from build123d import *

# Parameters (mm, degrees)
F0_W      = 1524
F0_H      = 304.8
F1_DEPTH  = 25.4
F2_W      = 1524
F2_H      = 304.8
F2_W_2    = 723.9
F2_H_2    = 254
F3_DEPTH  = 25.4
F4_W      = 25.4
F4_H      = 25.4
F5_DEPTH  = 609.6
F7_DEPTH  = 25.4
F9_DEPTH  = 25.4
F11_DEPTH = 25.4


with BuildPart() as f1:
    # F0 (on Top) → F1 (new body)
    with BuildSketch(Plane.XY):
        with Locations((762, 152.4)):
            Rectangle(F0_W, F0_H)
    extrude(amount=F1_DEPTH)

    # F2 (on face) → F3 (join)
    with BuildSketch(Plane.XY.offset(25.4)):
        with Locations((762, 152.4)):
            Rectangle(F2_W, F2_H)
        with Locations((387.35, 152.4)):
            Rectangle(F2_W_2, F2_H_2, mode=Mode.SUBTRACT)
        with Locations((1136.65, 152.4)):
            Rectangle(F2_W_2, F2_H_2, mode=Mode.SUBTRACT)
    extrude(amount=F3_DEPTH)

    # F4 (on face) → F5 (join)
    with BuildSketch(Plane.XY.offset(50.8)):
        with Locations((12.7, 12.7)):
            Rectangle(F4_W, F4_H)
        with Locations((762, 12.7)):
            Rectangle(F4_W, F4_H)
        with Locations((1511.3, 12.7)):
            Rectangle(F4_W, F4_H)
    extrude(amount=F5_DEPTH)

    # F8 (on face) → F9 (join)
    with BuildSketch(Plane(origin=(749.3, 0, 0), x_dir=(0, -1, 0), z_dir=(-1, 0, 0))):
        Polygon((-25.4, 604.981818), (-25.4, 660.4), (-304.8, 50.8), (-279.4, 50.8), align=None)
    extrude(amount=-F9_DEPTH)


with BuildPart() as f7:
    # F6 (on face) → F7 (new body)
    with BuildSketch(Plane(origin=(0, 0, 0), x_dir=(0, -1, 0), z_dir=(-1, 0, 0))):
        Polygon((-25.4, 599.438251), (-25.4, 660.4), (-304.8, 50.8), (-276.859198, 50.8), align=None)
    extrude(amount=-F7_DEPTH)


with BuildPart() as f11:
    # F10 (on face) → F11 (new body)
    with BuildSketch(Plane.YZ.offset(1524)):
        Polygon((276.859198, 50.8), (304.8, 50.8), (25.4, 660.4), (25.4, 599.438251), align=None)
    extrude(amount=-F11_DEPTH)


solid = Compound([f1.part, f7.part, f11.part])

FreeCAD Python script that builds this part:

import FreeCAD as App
import Part
import Sketcher

V = App.Vector
Q = App.Units.Quantity


def add_polygon(sketch, points):
    """Adds a closed chain of lines whose ends are joined by coincident constraints."""
    first, n = sketch.GeometryCount, len(points)
    for a, b in zip(points, points[1:] + points[:1]):
        sketch.addGeometry(Part.LineSegment(App.Vector(*a, 0), App.Vector(*b, 0)), False)
    for i in range(n):
        sketch.addConstraint(Sketcher.Constraint("Coincident", first + i, 2, first + (i + 1) % n, 1))

doc = App.newDocument("Part")
body = doc.addObject("PartDesign::Body", "Body")

sketch1 = body.newObject("Sketcher::SketchObject", "Sketch")
sketch1.AttachmentSupport = (doc.getObject("XY_Plane"), [""])
sketch1.MapMode = "FlatFace"
add_polygon(sketch1, [(0, 305), (0, 0), (1524, 0), (1524, 305)])
sketch1.addConstraint([
    Sketcher.Constraint("Vertical", 0),
    Sketcher.Constraint("Horizontal", 1),
    Sketcher.Constraint("Vertical", 2),
    Sketcher.Constraint("Horizontal", 3),
    Sketcher.Constraint("Coincident", 0, 2, -1, 1),
    Sketcher.Constraint("DistanceX", 1, 1, 1, 2, Q("60 in")),
    Sketcher.Constraint("DistanceY", 0, 2, 0, 1, Q("12 in")),
])
pad1 = body.newObject("PartDesign::Pad", "Pad")
pad1.Profile = sketch1
pad1.Length = Q("1 in")

sketch2 = body.newObject("Sketcher::SketchObject", "Sketch001")
sketch2.AttachmentSupport = (doc.getObject("XY_Plane"), [""])
sketch2.MapMode = "FlatFace"
sketch2.AttachmentOffset = App.Placement(V(0, 0, 1 * 25.4), App.Rotation())
add_polygon(sketch2, [(0, 305), (0, 0), (1524, 0), (1524, 305)])
add_polygon(sketch2, [(749, 25), (25, 25), (25, 279), (749, 279)])
add_polygon(sketch2, [(1499, 25), (775, 25), (775, 279), (1499, 279)])
sketch2.addConstraint([
    Sketcher.Constraint("Vertical", 0),
    Sketcher.Constraint("Horizontal", 1),
    Sketcher.Constraint("Vertical", 2),
    Sketcher.Constraint("Horizontal", 3),
    Sketcher.Constraint("Horizontal", 4),
    Sketcher.Constraint("Vertical", 5),
    Sketcher.Constraint("Horizontal", 6),
    Sketcher.Constraint("Vertical", 7),
    Sketcher.Constraint("Horizontal", 8),
    Sketcher.Constraint("Vertical", 9),
    Sketcher.Constraint("Horizontal", 10),
    Sketcher.Constraint("Vertical", 11),
    Sketcher.Constraint("Coincident", 0, 2, -1, 1),
    Sketcher.Constraint("Horizontal", 7, 2, 8, 2),
    Sketcher.Constraint("Horizontal", 6, 2, 9, 2),
    Sketcher.Constraint("Equal", 6, 8),
    Sketcher.Constraint("DistanceX", 1, 1, 1, 2, Q("60 in")),
    Sketcher.Constraint("DistanceY", 0, 2, 0, 1, Q("12 in")),
    Sketcher.Constraint("DistanceY", 5, 1, 5, 2, Q("10 in")),
    Sketcher.Constraint("DistanceX", 4, 2, 4, 1, Q("28.5 in")),
    Sketcher.Constraint("DistanceX", -1, 1, 4, 2, Q("1 in")),
    Sketcher.Constraint("DistanceY", -1, 1, 4, 2, Q("1 in")),
    Sketcher.Constraint("DistanceX", -1, 1, 10, 2, Q("59 in")),
])
pad2 = body.newObject("PartDesign::Pad", "Pad001")
pad2.Profile = sketch2
pad2.Length = Q("1 in")

sketch3 = body.newObject("Sketcher::SketchObject", "Sketch002")
sketch3.AttachmentSupport = (doc.getObject("XY_Plane"), [""])
sketch3.MapMode = "FlatFace"
sketch3.AttachmentOffset = App.Placement(V(0, 0, 2 * 25.4), App.Rotation())
add_polygon(sketch3, [(0, 25), (0, 0), (25, 0), (25, 25)])
add_polygon(sketch3, [(749, 25), (749, 0), (775, 0), (775, 25)])
add_polygon(sketch3, [(1499, 25), (1499, 0), (1524, 0), (1524, 25)])
sketch3.addConstraint([
    Sketcher.Constraint("Vertical", 0),
    Sketcher.Constraint("Horizontal", 1),
    Sketcher.Constraint("Vertical", 2),
    Sketcher.Constraint("Horizontal", 3),
    Sketcher.Constraint("Vertical", 4),
    Sketcher.Constraint("Horizontal", 5),
    Sketcher.Constraint("Vertical", 6),
    Sketcher.Constraint("Horizontal", 7),
    Sketcher.Constraint("Vertical", 8),
    Sketcher.Constraint("Horizontal", 9),
    Sketcher.Constraint("Vertical", 10),
    Sketcher.Constraint("Horizontal", 11),
    Sketcher.Constraint("Coincident", 0, 2, -1, 1),
    Sketcher.Constraint("PointOnObject", 4, 2, -1),
    Sketcher.Constraint("PointOnObject", 8, 2, -1),
    Sketcher.Constraint("Horizontal", 3, 2, 6, 2),
    Sketcher.Constraint("Horizontal", 7, 2, 10, 2),
    Sketcher.Constraint("Equal", 3, 5),
    Sketcher.Constraint("Equal", 7, 9),
    Sketcher.Constraint("Equal", 11, 0),
    Sketcher.Constraint("DistanceX", 1, 1, 1, 2, Q("1 in")),
    Sketcher.Constraint("DistanceX", -1, 1, 8, 2, Q("59 in")),
    Sketcher.Constraint("DistanceX", -1, 1, 4, 2, Q("29.5 in")),
])
pad3 = body.newObject("PartDesign::Pad", "Pad002")
pad3.Profile = sketch3
pad3.Length = Q("24 in")

sketch4 = body.newObject("Sketcher::SketchObject", "Sketch003")
sketch4.AttachmentSupport = (doc.getObject("YZ_Plane"), [""])
sketch4.MapMode = "FlatFace"
sketch4.AttachmentOffset = App.Placement(V(0, 0, 29.5 * 25.4), App.Rotation())
add_polygon(sketch4, [(25, 605), (25, 660), (305, 51), (279, 51)])
sketch4.addConstraint([
    Sketcher.Constraint("Vertical", 0),
    Sketcher.Constraint("Horizontal", 2),
    Sketcher.Constraint("Parallel", 1, 3),
    Sketcher.Constraint("DistanceX", 2, 2, 2, 1, Q("1 in")),
    Sketcher.Constraint("DistanceX", -1, 1, 0, 2, Q("1 in")),
    Sketcher.Constraint("DistanceY", -1, 1, 0, 2, Q("26 in")),
    Sketcher.Constraint("DistanceX", -1, 1, 1, 2, Q("12 in")),
    Sketcher.Constraint("DistanceY", -1, 1, 1, 2, Q("2 in")),
])
pad4 = body.newObject("PartDesign::Pad", "Pad003")
pad4.Profile = sketch4
pad4.Length = Q("1 in")
body2 = doc.addObject("PartDesign::Body", "Body001")

sketch5 = body2.newObject("Sketcher::SketchObject", "Sketch004")
sketch5.AttachmentSupport = (doc.getObject("YZ_Plane001"), [""])
sketch5.MapMode = "FlatFace"
add_polygon(sketch5, [(25, 599), (25, 660), (305, 51), (277, 51)])
sketch5.addConstraint([
    Sketcher.Constraint("Vertical", 0),
    Sketcher.Constraint("Horizontal", 2),
    Sketcher.Constraint("Parallel", 1, 3),
    Sketcher.Constraint("DistanceX", -1, 1, 0, 2, Q("1 in")),
    Sketcher.Constraint("DistanceY", -1, 1, 0, 2, Q("26 in")),
    Sketcher.Constraint("DistanceX", -1, 1, 1, 2, Q("12 in")),
    Sketcher.Constraint("DistanceY", -1, 1, 1, 2, Q("2 in")),
    Sketcher.Constraint("DistanceY", 0, 1, 0, 2, 60.961749),
])
pad5 = body2.newObject("PartDesign::Pad", "Pad004")
pad5.Profile = sketch5
pad5.Length = Q("1 in")
body3 = doc.addObject("PartDesign::Body", "Body002")

sketch6 = body3.newObject("Sketcher::SketchObject", "Sketch005")
sketch6.AttachmentSupport = (doc.getObject("YZ_Plane002"), [""])
sketch6.MapMode = "FlatFace"
sketch6.AttachmentOffset = App.Placement(V(0, 0, 60 * 25.4), App.Rotation())
add_polygon(sketch6, [(277, 51), (305, 51), (25, 660), (25, 599)])
sketch6.addConstraint([
    Sketcher.Constraint("Horizontal", 0),
    Sketcher.Constraint("Vertical", 2),
    Sketcher.Constraint("Parallel", 1, 3),
    Sketcher.Constraint("DistanceX", -1, 1, 0, 2, Q("12 in")),
    Sketcher.Constraint("DistanceY", -1, 1, 0, 2, Q("2 in")),
    Sketcher.Constraint("DistanceX", -1, 1, 1, 2, Q("1 in")),
    Sketcher.Constraint("DistanceY", -1, 1, 1, 2, Q("26 in")),
    Sketcher.Constraint("DistanceY", 2, 2, 2, 1, 60.961749),
])
pad6 = body3.newObject("PartDesign::Pad", "Pad005")
pad6.Profile = sketch6
pad6.Length = Q("1 in")
pad6.Reversed = True

doc.recompute()
